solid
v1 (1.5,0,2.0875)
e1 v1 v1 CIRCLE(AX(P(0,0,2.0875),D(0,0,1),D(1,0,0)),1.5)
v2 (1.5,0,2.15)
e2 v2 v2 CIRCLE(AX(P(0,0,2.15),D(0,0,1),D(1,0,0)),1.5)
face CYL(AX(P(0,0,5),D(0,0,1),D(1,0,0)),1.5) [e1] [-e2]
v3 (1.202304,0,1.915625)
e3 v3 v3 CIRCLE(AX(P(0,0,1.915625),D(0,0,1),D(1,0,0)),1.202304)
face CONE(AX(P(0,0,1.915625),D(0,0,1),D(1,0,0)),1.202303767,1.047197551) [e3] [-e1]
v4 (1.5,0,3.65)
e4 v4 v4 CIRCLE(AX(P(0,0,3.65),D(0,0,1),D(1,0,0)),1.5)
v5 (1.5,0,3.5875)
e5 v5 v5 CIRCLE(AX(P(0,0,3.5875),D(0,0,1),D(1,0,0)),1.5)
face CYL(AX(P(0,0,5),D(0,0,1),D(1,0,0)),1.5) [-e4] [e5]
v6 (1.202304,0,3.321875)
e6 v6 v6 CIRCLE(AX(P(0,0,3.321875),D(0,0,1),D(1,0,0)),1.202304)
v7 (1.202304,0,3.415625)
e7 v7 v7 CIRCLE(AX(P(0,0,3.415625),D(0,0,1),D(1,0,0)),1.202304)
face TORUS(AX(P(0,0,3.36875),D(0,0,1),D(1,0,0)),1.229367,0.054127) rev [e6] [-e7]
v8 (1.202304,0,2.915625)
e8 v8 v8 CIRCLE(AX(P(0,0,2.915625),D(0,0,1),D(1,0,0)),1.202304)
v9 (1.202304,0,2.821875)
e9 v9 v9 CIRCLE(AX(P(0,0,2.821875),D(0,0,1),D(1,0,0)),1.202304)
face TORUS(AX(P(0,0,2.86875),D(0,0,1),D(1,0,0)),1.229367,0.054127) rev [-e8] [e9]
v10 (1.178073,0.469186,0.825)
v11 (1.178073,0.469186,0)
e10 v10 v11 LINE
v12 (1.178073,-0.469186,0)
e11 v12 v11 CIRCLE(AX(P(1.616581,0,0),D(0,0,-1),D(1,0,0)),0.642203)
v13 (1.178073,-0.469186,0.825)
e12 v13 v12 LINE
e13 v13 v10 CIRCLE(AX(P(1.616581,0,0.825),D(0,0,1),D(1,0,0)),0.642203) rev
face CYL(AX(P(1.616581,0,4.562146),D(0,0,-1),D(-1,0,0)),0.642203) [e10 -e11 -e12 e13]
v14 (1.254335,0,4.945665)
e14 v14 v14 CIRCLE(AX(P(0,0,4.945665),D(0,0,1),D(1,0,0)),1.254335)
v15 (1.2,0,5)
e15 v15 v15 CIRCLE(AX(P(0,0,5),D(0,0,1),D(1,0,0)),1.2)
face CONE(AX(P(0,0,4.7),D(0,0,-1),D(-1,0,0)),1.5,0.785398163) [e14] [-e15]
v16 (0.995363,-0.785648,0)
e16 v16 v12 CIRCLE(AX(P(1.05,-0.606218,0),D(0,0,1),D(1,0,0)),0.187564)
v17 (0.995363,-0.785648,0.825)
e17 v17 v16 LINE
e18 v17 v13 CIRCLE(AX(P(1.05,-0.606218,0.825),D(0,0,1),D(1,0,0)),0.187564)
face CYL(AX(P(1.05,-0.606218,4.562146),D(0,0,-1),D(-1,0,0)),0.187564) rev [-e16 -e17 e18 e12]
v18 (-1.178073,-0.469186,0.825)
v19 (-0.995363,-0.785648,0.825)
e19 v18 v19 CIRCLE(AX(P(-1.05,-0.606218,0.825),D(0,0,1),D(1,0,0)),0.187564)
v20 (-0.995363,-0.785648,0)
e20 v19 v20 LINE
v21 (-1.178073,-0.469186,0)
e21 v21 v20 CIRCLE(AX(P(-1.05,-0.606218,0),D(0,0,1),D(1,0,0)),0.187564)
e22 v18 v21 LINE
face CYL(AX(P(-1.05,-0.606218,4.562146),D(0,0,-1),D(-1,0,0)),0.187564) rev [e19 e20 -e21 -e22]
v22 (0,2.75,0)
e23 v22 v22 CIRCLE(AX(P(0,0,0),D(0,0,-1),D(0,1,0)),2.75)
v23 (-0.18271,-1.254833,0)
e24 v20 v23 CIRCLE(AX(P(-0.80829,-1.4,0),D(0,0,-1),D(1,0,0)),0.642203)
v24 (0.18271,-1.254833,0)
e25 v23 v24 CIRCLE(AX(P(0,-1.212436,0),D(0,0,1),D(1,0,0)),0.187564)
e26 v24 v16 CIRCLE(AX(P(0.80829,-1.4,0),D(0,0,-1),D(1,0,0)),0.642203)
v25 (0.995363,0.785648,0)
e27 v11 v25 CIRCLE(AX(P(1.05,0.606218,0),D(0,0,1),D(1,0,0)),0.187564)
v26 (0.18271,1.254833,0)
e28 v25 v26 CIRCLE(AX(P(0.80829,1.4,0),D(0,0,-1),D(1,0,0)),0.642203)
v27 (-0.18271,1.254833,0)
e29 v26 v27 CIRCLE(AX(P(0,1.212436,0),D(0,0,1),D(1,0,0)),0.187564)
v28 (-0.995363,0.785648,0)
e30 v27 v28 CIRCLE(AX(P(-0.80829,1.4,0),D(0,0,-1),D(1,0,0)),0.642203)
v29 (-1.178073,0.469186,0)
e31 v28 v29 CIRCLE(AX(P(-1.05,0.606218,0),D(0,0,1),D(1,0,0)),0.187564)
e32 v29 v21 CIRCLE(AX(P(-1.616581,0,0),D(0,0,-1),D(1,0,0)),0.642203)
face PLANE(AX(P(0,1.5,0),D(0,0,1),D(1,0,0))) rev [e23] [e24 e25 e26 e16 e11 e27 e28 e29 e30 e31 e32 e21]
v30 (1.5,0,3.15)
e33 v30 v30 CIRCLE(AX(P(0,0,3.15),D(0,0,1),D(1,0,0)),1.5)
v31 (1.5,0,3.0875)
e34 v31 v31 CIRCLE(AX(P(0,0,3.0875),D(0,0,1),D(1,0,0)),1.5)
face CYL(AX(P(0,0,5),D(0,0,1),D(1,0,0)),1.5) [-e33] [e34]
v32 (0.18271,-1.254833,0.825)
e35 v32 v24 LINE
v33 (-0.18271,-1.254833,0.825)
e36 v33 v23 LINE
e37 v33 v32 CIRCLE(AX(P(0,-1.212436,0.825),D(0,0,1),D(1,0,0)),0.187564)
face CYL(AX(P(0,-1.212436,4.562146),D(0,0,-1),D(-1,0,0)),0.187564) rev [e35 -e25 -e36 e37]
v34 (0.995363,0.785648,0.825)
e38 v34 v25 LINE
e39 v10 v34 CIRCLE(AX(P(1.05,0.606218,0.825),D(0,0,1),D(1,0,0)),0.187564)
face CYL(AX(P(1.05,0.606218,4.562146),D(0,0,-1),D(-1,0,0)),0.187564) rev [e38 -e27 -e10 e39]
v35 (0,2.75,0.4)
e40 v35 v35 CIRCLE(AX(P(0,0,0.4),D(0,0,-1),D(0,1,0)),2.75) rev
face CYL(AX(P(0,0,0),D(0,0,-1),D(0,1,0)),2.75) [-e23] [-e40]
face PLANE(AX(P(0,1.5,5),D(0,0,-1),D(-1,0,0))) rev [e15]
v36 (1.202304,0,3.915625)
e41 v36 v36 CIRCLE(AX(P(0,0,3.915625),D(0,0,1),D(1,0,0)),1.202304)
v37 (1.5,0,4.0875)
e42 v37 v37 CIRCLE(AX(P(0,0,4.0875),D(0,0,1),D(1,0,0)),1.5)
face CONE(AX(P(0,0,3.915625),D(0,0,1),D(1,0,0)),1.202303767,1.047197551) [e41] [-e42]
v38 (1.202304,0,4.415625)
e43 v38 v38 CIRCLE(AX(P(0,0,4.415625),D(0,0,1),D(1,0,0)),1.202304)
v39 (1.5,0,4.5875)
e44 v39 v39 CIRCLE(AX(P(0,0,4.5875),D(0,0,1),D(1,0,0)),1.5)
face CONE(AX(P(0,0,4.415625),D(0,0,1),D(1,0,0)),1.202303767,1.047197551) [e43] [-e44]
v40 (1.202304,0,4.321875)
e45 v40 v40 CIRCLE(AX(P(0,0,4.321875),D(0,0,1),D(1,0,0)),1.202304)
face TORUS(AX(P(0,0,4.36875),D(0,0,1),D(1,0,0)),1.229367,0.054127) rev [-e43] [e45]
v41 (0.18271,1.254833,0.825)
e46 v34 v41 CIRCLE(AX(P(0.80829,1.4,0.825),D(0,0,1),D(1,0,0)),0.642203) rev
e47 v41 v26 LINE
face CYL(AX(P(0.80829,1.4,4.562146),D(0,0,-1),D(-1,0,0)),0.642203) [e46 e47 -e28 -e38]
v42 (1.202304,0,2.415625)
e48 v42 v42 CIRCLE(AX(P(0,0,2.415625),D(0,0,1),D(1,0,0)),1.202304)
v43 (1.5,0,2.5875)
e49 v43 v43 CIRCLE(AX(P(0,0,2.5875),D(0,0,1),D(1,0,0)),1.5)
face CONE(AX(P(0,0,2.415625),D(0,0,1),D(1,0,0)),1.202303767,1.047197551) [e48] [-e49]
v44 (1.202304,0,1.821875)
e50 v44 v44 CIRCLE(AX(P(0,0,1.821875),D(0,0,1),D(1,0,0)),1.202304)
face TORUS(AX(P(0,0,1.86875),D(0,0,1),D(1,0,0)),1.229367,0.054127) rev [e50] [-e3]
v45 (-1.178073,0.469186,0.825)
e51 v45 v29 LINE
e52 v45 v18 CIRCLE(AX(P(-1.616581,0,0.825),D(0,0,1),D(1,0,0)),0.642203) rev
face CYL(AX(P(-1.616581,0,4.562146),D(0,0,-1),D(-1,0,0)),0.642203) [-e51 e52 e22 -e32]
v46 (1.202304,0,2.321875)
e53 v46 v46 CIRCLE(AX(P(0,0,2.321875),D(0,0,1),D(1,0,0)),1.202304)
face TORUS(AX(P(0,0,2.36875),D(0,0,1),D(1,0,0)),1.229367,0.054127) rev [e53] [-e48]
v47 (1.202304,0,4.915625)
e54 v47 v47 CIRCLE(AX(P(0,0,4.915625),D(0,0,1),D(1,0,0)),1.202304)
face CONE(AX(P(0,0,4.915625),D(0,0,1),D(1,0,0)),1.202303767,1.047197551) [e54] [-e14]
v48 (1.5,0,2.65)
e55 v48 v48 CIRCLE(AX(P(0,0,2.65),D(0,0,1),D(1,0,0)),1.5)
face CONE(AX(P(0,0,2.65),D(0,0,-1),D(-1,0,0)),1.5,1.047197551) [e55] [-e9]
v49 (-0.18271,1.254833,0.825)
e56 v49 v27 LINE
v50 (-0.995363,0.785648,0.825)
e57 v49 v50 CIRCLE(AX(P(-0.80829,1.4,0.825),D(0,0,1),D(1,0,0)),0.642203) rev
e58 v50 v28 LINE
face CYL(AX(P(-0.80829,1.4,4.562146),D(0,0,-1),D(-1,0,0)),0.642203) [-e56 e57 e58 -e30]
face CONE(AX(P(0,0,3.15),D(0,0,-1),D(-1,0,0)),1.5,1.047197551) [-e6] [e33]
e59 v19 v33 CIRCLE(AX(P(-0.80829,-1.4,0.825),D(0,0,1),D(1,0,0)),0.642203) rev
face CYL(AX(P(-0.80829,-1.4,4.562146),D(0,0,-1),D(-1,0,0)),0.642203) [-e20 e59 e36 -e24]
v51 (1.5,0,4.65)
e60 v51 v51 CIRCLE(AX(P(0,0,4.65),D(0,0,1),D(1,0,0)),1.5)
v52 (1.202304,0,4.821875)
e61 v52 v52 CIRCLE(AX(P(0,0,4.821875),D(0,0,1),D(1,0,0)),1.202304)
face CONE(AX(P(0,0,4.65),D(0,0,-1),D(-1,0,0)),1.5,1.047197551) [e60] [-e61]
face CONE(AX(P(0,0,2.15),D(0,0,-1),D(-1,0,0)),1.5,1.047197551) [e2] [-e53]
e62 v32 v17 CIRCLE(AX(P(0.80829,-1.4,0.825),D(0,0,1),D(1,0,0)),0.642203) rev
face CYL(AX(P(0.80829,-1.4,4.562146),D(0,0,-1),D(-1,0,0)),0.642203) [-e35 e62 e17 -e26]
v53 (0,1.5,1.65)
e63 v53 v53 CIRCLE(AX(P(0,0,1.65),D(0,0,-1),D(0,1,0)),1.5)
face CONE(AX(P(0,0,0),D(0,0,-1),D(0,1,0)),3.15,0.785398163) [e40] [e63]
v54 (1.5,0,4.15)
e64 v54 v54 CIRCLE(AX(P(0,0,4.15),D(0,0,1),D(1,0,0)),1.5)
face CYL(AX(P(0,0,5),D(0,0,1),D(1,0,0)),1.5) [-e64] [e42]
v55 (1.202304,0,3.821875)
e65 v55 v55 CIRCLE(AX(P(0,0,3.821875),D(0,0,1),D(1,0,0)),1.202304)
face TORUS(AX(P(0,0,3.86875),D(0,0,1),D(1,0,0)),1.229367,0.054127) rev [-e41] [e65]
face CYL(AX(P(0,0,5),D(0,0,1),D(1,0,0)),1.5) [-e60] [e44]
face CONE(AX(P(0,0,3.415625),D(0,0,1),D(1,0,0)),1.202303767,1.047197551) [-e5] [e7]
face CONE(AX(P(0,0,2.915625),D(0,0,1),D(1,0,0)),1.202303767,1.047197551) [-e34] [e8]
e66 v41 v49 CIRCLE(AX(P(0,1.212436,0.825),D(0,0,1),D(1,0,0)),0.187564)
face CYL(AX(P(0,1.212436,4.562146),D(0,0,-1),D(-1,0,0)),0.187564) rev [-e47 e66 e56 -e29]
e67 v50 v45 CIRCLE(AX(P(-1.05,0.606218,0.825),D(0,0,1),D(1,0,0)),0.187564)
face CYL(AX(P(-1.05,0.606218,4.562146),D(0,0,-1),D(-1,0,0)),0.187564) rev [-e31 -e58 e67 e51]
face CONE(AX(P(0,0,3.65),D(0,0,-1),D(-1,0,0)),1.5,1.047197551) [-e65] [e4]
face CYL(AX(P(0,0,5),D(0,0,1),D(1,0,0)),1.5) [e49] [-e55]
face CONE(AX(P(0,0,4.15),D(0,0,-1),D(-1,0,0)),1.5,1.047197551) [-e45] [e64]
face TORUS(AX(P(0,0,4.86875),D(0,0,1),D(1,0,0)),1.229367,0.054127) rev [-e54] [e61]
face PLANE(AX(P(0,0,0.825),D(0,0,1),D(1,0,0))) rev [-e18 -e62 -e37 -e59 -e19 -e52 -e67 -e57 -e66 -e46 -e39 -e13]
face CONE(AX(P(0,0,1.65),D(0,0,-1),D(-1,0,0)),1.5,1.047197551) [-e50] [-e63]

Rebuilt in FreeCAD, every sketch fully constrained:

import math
import FreeCAD as App
import Part
import Sketcher

V = App.Vector
Q = App.Units.Quantity


def add_polygon(sketch, points):
    """Adds a closed chain of lines whose ends are joined by coincident constraints."""
    first, n = sketch.GeometryCount, len(points)
    for a, b in zip(points, points[1:] + points[:1]):
        sketch.addGeometry(Part.LineSegment(App.Vector(*a, 0), App.Vector(*b, 0)), False)
    for i in range(n):
        sketch.addConstraint(Sketcher.Constraint("Coincident", first + i, 2, first + (i + 1) % n, 1))

doc = App.newDocument("Part")
body = doc.addObject("PartDesign::Body", "Body")

sketch1 = body.newObject("Sketcher::SketchObject", "Sketch")
sketch1.AttachmentSupport = (doc.getObject("YZ_Plane"), [""])
sketch1.MapMode = "FlatFace"
add_polygon(sketch1, [(1.5, 5), (0, 5), (0, 0), (1.5, 0)])
sketch1.addConstraint([
    Sketcher.Constraint("Horizontal", 0),
    Sketcher.Constraint("Vertical", 1),
    Sketcher.Constraint("Horizontal", 2),
    Sketcher.Constraint("Vertical", 3),
    Sketcher.Constraint("Coincident", 1, 2, -1, 1),
    Sketcher.Constraint("DistanceY", 1, 2, 1, 1, Q("5 mm")),
    Sketcher.Constraint("DistanceX", 0, 2, 0, 1, Q("1.5 mm")),
])
revolution = body.newObject("PartDesign::Revolution", "Revolution")
revolution.Profile = sketch1
revolution.ReferenceAxis = (sketch1, ["V_Axis"])
revolution.Angle = 360

sketch2 = body.newObject("Sketcher::SketchObject", "Sketch001")
sketch2.AttachmentSupport = (doc.getObject("YZ_Plane"), [""])
sketch2.MapMode = "FlatFace"
add_polygon(sketch2, [(-1.2, 5), (-1.5, 5), (-1.5, 4.7)])
sketch2.addConstraint([
    Sketcher.Constraint("Horizontal", 0),
    Sketcher.Constraint("Vertical", 1),
    Sketcher.Constraint("Equal", 0, 1),
    Sketcher.Constraint("DistanceX", 0, 2, 0, 1, Q("0.3 mm")),
    Sketcher.Constraint("DistanceY", -1, 1, 0, 2, Q("5 mm")),
    Sketcher.Constraint("DistanceX", 0, 2, -1, 1, Q("1.5 mm")),
])
groove = body.newObject("PartDesign::Groove", "Groove")
groove.Profile = sketch2
groove.ReferenceAxis = (sketch2, ["V_Axis"])
groove.Angle = 360

sketch3 = body.newObject("Sketcher::SketchObject", "Sketch002")
sketch3.AttachmentSupport = (doc.getObject("YZ_Plane"), [""])
sketch3.MapMode = "FlatFace"
sketch3.addGeometry([
    Part.LineSegment(V(-1.5, 2.09, 0), V(-1.5, 1.65, 0)),
    Part.LineSegment(V(-1.5, 1.65, 0), V(-1.2, 1.82, 0)),
    Part.ArcOfCircle(Part.Circle(V(-1.23, 1.87, 0), V(0, 0, 1), 0.05), math.radians(-60), math.radians(60)),
    Part.LineSegment(V(-1.2, 1.92, 0), V(-1.5, 2.09, 0)),
], False)
sketch3.addConstraint([
    Sketcher.Constraint("Coincident", 0, 2, 1, 1),
    Sketcher.Constraint("Tangent", 1, 2, 2, 1),
    Sketcher.Constraint("Tangent", 2, 2, 3, 1),
    Sketcher.Constraint("Coincident", 3, 2, 0, 1),
    Sketcher.Constraint("Vertical", 0),
    Sketcher.Constraint("Vertical", 1, 2, 2, 2),
    Sketcher.Constraint("Angle", 1, Q("30 deg")),
    Sketcher.Constraint("DistanceX", 0, 2, -1, 1, Q("1.5 mm")),
    Sketcher.Constraint("DistanceY", -1, 1, 0, 2, Q("1.65 mm")),
    Sketcher.Constraint("DistanceY", 0, 2, 0, 1, Q("0.4375 mm")),
    Sketcher.Constraint("Radius", 2, Q("0.054127 mm")),
])
groove2 = body.newObject("PartDesign::Groove", "Groove001")
groove2.Profile = sketch3
groove2.ReferenceAxis = (sketch3, ["V_Axis"])
groove2.Angle = 360
doc.recompute()

linearpattern = body.newObject("PartDesign::LinearPattern", "LinearPattern")
linearpattern.Originals = [groove2]
linearpattern.Direction = (doc.getObject("Z_Axis"), [""])
linearpattern.Mode = "offset"
linearpattern.Offset = 0.5
linearpattern.Occurrences = 7
body.Tip = linearpattern

sketch4 = body.newObject("Sketcher::SketchObject", "Sketch003")
sketch4.AttachmentSupport = (doc.getObject("YZ_Plane"), [""])
sketch4.MapMode = "FlatFace"
add_polygon(sketch4, [(0, 1.6), (-2.8, 1.6), (-2.8, 0), (0, 0)])
sketch4.addConstraint([
    Sketcher.Constraint("Horizontal", 0),
    Sketcher.Constraint("Vertical", 1),
    Sketcher.Constraint("Horizontal", 2),
    Sketcher.Constraint("Vertical", 3),
    Sketcher.Constraint("Coincident", 2, 2, -1, 1),
    Sketcher.Constraint("DistanceX", 0, 2, 0, 1, Q("2.75 mm")),
    Sketcher.Constraint("DistanceY", 1, 2, 1, 1, Q("1.65 mm")),
])
revolution2 = body.newObject("PartDesign::Revolution", "Revolution001")
revolution2.Profile = sketch4
revolution2.ReferenceAxis = (sketch4, ["V_Axis"])
revolution2.Angle = 360

sketch5 = body.newObject("Sketcher::SketchObject", "Sketch004")
sketch5.AttachmentSupport = (doc.getObject("YZ_Plane"), [""])
sketch5.MapMode = "FlatFace"
add_polygon(sketch5, [(-1.5, 1.6), (-3.1, 1.6), (-3.1, 0)])
sketch5.addConstraint([
    Sketcher.Constraint("Horizontal", 0),
    Sketcher.Constraint("Vertical", 1),
    Sketcher.Constraint("PointOnObject", 1, 2, -1),
    Sketcher.Constraint("Equal", 0, 1),
    Sketcher.Constraint("DistanceX", 0, 2, 0, 1, Q("1.65 mm")),
    Sketcher.Constraint("DistanceX", 2, 2, -1, 1, Q("1.5 mm")),
])
groove3 = body.newObject("PartDesign::Groove", "Groove002")
groove3.Profile = sketch5
groove3.ReferenceAxis = (sketch5, ["V_Axis"])
groove3.Angle = 360

sketch6 = body.newObject("Sketcher::SketchObject", "Sketch005")
sketch6.AttachmentSupport = (doc.getObject("XY_Plane"), [""])
sketch6.MapMode = "FlatFace"
sketch6.addGeometry([
    Part.ArcOfCircle(Part.Circle(V(0, 1.21, 0), V(0, 0, 1), 0.19), math.radians(13), math.radians(167)),
    Part.ArcOfCircle(Part.Circle(V(-0.81, 1.4, 0), V(0, 0, 1), 0.64), math.radians(-107), math.radians(-13)),
    Part.ArcOfCircle(Part.Circle(V(-1.05, 0.61, 0), V(0, 0, 1), 0.19), math.radians(73), math.radians(227)),
    Part.ArcOfCircle(Part.Circle(V(-1.62, 0, 0), V(0, 0, 1), 0.64), math.radians(-47), math.radians(47)),
    Part.ArcOfCircle(Part.Circle(V(-1.05, -0.61, 0), V(0, 0, 1), 0.19), math.radians(133), math.radians(287)),
    Part.ArcOfCircle(Part.Circle(V(-0.81, -1.4, 0), V(0, 0, 1), 0.64), math.radians(13), math.radians(107)),
    Part.ArcOfCircle(Part.Circle(V(0, -1.21, 0), V(0, 0, 1), 0.19), math.radians(-167), math.radians(-13)),
    Part.ArcOfCircle(Part.Circle(V(0.81, -1.4, 0), V(0, 0, 1), 0.64), math.radians(73), math.radians(167)),
    Part.ArcOfCircle(Part.Circle(V(1.05, -0.61, 0), V(0, 0, 1), 0.19), math.radians(-107), math.radians(47)),
    Part.ArcOfCircle(Part.Circle(V(1.62, 0, 0), V(0, 0, 1), 0.64), math.radians(133), math.radians(227)),
    Part.ArcOfCircle(Part.Circle(V(1.05, 0.61, 0), V(0, 0, 1), 0.19), math.radians(-47), math.radians(107)),
    Part.ArcOfCircle(Part.Circle(V(0.81, 1.4, 0), V(0, 0, 1), 0.64), math.radians(-167), math.radians(-73)),
], False)
sketch6.addConstraint([
    Sketcher.Constraint("Tangent", 0, 2, 1, 2),
    Sketcher.Constraint("Tangent", 1, 1, 2, 1),
    Sketcher.Constraint("Tangent", 2, 2, 3, 2),
    Sketcher.Constraint("Tangent", 3, 1, 4, 1),
    Sketcher.Constraint("Tangent", 4, 2, 5, 2),
    Sketcher.Constraint("Tangent", 5, 1, 6, 1),
    Sketcher.Constraint("Tangent", 6, 2, 7, 2),
    Sketcher.Constraint("Tangent", 7, 1, 8, 1),
    Sketcher.Constraint("Tangent", 8, 2, 9, 2),
    Sketcher.Constraint("Tangent", 9, 1, 10, 1),
    Sketcher.Constraint("Tangent", 10, 2, 11, 2),
    Sketcher.Constraint("Tangent", 11, 1, 0, 1),
    Sketcher.Constraint("Equal", 0, 2),
    Sketcher.Constraint("Equal", 1, 3),
    Sketcher.Constraint("Equal", 2, 4),
    Sketcher.Constraint("Equal", 3, 5),
    Sketcher.Constraint("Equal", 4, 6),
    Sketcher.Constraint("Equal", 5, 7),
    Sketcher.Constraint("Equal", 6, 8),
    Sketcher.Constraint("Equal", 7, 9),
    Sketcher.Constraint("Equal", 8, 10),
    Sketcher.Constraint("Equal", 9, 11),
    Sketcher.Constraint("Symmetric", 0, 3, 6, 3, -1, 1),
    Sketcher.Constraint("Symmetric", 2, 3, 8, 3, -1, 1),
    Sketcher.Constraint("Symmetric", 4, 3, 10, 3, -1, 1),
    Sketcher.Constraint("Symmetric", 5, 3, 7, 3, -2),
    Sketcher.Constraint("PointOnObject", 3, 3, -1),
    Sketcher.Constraint("DistanceY", -1, 1, 1, 3, Q("1.4 mm")),
    Sketcher.Constraint("DistanceX", 4, 3, 8, 3, Q("2.1 mm")),
    Sketcher.Constraint("Radius", 0, Q("0.187564 mm")),
    Sketcher.Constraint("Radius", 1, Q("0.642203 mm")),
    Sketcher.Constraint("DistanceX", 0, 2, 11, 3, Q("0.991 mm")),
])
pocket1 = body.newObject("PartDesign::Pocket", "Pocket")
pocket1.Profile = sketch6
pocket1.Length = 0.825
pocket1.Reversed = True

doc.recompute()
